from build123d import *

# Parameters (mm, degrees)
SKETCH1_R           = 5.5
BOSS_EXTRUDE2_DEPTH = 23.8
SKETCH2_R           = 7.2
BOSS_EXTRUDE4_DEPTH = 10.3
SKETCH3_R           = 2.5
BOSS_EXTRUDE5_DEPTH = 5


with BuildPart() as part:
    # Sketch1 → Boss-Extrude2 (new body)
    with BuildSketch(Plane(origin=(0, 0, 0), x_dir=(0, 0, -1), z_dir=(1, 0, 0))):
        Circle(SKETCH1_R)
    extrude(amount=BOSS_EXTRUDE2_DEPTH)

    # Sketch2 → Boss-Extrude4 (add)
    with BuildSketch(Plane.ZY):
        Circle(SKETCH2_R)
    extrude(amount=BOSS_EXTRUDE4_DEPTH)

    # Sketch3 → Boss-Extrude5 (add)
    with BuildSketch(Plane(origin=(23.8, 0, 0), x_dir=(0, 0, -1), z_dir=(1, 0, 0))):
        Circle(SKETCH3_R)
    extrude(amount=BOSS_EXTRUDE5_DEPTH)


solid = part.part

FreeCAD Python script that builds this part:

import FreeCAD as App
import Part
import Sketcher

doc = App.newDocument("Part")
body = doc.addObject("PartDesign::Body", "Body")

# Sketch on YZ plane
sketch1 = body.newObject("Sketcher::SketchObject", "Sketch")
sketch1.AttachmentSupport = (doc.getObject("YZ_Plane"), [""])
sketch1.MapMode = "FlatFace"
sketch1.addGeometry(Part.Circle(App.Vector(0, 0, 0), App.Vector(0, 0, 1), 6), False)
sketch1.addConstraint([
    Sketcher.Constraint("Coincident", 0, 3, -1, 1),
    Sketcher.Constraint("Diameter", 0, 11.0),
])
pad1 = body.newObject("PartDesign::Pad", "Pad")
pad1.Profile = sketch1
pad1.Length = 23.8

# Sketch on YZ plane
sketch2 = body.newObject("Sketcher::SketchObject", "Sketch001")
sketch2.AttachmentSupport = (doc.getObject("YZ_Plane"), [""])
sketch2.MapMode = "FlatFace"
sketch2.addGeometry(Part.Circle(App.Vector(0, 0, 0), App.Vector(0, 0, 1), 7), False)
sketch2.addConstraint([
    Sketcher.Constraint("Coincident", 0, 3, -1, 1),
    Sketcher.Constraint("Diameter", 0, 14.4),
])
pad2 = body.newObject("PartDesign::Pad", "Pad001")
pad2.Profile = sketch2
pad2.Length = 10.3
pad2.Reversed = True

# Sketch on YZ plane
sketch3 = body.newObject("Sketcher::SketchObject", "Sketch002")
sketch3.AttachmentSupport = (doc.getObject("YZ_Plane"), [""])
sketch3.MapMode = "FlatFace"
sketch3.AttachmentOffset = App.Placement(App.Vector(0, 0, 23.8), App.Rotation())
sketch3.addGeometry(Part.Circle(App.Vector(0, 0, 0), App.Vector(0, 0, 1), 2.5), False)
sketch3.addConstraint([
    Sketcher.Constraint("Coincident", 0, 3, -1, 1),
    Sketcher.Constraint("Diameter", 0, 5.0),
])
pad3 = body.newObject("PartDesign::Pad", "Pad002")
pad3.Profile = sketch3
pad3.Length = 5

doc.recompute()
